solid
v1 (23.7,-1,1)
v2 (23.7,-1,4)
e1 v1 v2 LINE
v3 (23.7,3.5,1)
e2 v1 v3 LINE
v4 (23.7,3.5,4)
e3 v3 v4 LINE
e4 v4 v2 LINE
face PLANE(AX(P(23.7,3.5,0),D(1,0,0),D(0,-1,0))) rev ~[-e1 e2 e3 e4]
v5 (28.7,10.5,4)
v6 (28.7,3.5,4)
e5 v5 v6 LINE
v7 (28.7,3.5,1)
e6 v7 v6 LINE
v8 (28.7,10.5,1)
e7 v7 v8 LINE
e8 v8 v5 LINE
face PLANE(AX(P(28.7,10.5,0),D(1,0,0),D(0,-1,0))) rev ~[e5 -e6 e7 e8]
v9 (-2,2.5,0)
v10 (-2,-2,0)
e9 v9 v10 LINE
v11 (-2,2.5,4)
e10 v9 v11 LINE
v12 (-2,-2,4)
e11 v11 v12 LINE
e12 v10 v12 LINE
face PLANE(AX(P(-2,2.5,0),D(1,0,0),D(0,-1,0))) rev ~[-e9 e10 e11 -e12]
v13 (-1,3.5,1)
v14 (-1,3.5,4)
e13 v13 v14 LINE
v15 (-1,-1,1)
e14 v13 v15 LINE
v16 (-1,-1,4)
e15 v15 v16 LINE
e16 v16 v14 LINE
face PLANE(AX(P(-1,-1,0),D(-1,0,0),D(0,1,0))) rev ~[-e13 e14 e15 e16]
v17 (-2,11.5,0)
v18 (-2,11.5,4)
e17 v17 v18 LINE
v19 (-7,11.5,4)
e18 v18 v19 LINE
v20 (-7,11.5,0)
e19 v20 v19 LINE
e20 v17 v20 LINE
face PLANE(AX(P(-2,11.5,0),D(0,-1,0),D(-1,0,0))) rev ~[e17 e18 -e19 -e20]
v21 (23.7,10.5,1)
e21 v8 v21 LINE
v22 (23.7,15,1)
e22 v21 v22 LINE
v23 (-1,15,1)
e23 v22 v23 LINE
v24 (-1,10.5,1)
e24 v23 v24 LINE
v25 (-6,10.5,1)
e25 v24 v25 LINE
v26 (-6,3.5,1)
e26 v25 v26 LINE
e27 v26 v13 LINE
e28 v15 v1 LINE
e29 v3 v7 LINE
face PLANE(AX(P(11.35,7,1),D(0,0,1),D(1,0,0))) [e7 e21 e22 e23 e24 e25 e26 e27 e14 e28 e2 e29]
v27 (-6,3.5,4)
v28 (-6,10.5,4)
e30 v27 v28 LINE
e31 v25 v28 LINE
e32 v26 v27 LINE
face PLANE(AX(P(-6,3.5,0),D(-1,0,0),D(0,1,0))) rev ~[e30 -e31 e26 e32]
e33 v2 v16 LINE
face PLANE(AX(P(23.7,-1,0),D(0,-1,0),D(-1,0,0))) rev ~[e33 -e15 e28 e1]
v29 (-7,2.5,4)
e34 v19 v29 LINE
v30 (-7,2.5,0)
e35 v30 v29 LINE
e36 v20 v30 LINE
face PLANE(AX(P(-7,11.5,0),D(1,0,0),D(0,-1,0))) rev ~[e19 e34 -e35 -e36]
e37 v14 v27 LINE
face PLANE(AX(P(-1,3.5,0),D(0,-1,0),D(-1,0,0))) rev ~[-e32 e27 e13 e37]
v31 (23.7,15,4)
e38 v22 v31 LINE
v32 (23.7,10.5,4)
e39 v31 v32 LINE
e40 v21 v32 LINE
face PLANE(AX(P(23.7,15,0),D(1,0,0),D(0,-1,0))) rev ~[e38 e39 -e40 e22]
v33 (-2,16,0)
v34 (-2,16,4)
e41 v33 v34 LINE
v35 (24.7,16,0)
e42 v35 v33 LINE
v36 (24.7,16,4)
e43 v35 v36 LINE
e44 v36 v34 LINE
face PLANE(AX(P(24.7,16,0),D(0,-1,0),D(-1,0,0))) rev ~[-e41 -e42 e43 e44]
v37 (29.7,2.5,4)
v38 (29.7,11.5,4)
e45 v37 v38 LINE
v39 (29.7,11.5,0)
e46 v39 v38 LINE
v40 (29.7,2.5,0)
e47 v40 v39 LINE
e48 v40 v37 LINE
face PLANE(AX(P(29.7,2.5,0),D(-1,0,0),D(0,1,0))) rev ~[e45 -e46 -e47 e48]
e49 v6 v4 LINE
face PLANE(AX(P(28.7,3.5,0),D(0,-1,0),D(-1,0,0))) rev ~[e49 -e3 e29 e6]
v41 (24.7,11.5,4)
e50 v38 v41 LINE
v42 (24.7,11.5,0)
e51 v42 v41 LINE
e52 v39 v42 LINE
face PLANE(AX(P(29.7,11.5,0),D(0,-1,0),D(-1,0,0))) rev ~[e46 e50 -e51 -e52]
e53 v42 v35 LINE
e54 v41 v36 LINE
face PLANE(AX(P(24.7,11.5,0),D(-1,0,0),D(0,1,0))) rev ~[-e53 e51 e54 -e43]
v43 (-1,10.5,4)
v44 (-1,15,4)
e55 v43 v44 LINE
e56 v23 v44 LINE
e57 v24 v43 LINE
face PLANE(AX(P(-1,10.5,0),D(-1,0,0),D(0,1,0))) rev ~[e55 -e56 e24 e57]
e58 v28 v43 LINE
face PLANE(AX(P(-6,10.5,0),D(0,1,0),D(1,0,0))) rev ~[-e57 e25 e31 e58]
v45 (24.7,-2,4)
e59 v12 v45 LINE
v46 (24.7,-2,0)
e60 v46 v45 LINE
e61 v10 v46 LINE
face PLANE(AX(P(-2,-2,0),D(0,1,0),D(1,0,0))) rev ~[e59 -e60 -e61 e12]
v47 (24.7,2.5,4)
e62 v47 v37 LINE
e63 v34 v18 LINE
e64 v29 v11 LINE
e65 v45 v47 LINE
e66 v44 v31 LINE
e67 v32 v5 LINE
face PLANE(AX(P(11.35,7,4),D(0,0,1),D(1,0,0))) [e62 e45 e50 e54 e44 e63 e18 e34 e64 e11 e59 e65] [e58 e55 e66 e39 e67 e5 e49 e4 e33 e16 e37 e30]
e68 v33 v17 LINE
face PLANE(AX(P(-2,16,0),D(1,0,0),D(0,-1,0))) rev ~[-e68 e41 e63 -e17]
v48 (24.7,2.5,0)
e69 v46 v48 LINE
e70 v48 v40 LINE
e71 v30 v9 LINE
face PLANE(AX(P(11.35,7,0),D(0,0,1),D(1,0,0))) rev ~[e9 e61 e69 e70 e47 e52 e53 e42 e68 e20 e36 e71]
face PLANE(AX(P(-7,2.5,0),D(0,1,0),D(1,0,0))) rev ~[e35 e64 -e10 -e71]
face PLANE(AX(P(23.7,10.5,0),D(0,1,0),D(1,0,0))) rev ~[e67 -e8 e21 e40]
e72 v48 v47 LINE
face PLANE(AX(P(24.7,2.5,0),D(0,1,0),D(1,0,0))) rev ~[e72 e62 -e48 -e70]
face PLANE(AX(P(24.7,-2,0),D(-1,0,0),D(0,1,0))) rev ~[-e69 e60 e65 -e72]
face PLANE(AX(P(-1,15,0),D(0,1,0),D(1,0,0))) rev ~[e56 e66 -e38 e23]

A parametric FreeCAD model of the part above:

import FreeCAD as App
import Part
import Sketcher

V = App.Vector
Q = App.Units.Quantity


def add_polygon(sketch, points):
    """Adds a closed chain of lines whose ends are joined by coincident constraints."""
    first, n = sketch.GeometryCount, len(points)
    for a, b in zip(points, points[1:] + points[:1]):
        sketch.addGeometry(Part.LineSegment(App.Vector(*a, 0), App.Vector(*b, 0)), False)
    for i in range(n):
        sketch.addConstraint(Sketcher.Constraint("Coincident", first + i, 2, first + (i + 1) % n, 1))

doc = App.newDocument("Part")
params = doc.addObject("Spreadsheet::Sheet", "Params")
for row, (alias, value) in enumerate([
    ("sketch1_width", "5 mm"),
    ("sketch1_height", "9 mm"),
    ("sketch1_height2", "7 mm"),
    ("sketch1_width2", "26.7 mm"),
    ("sketch1_width3", "24.7 mm"),
    ("pad1_length", "4 mm"),
    ("sketch2_width", "5 mm"),
    ("sketch2_height", "7 mm"),
    ("sketch2_width2", "24.7 mm"),
    ("sketch2_height2", "4.5 mm"),
    ("pad2_length", "1 mm"),
], start=1):
    params.set(f"A{row}", alias)
    params.set(f"B{row}", "=" + value)
    params.setAlias(f"B{row}", alias)

body = doc.addObject("PartDesign::Body", "Body")

# Sketch on XY plane
sketch1 = body.newObject("Sketcher::SketchObject", "Sketch")
sketch1.AttachmentSupport = (doc.getObject("XY_Plane"), [""])
sketch1.MapMode = "FlatFace"
add_polygon(sketch1, [(-2, 16), (-2, 11.5), (-7, 11.5), (-7, 2.5), (-2, 2.5), (-2, -2), (24.7, -2), (24.7, 2.5), (29.7, 2.5), (29.7, 11.5), (24.7, 11.5), (24.7, 16)])  # lines 0-11
add_polygon(sketch1, [(-6, 3.5), (-6, 10.5), (-1, 10.5), (-1, 15), (23.7, 15), (23.7, 10.5), (28.7, 10.5), (28.7, 3.5), (23.7, 3.5), (23.7, -1), (-1, -1), (-1, 3.5)])  # lines 12-23
sketch1.addConstraint(Sketcher.Constraint("Vertical", 0))
sketch1.addConstraint(Sketcher.Constraint("Horizontal", 1))
sketch1.addConstraint(Sketcher.Constraint("Vertical", 2))
sketch1.addConstraint(Sketcher.Constraint("Horizontal", 3))
sketch1.addConstraint(Sketcher.Constraint("Vertical", 4))
sketch1.addConstraint(Sketcher.Constraint("Horizontal", 5))
sketch1.addConstraint(Sketcher.Constraint("Vertical", 6))
sketch1.addConstraint(Sketcher.Constraint("Horizontal", 7))
sketch1.addConstraint(Sketcher.Constraint("Vertical", 8))
sketch1.addConstraint(Sketcher.Constraint("Horizontal", 9))
sketch1.addConstraint(Sketcher.Constraint("Vertical", 10))
sketch1.addConstraint(Sketcher.Constraint("Horizontal", 11))
sketch1.addConstraint(Sketcher.Constraint("Vertical", 12))
sketch1.addConstraint(Sketcher.Constraint("Horizontal", 13))
sketch1.addConstraint(Sketcher.Constraint("Vertical", 14))
sketch1.addConstraint(Sketcher.Constraint("Horizontal", 15))
sketch1.addConstraint(Sketcher.Constraint("Vertical", 16))
sketch1.addConstraint(Sketcher.Constraint("Horizontal", 17))
sketch1.addConstraint(Sketcher.Constraint("Vertical", 18))
sketch1.addConstraint(Sketcher.Constraint("Horizontal", 19))
sketch1.addConstraint(Sketcher.Constraint("Vertical", 20))
sketch1.addConstraint(Sketcher.Constraint("Horizontal", 21))
sketch1.addConstraint(Sketcher.Constraint("Vertical", 22))
sketch1.addConstraint(Sketcher.Constraint("Horizontal", 23))
sketch1.addConstraint(Sketcher.Constraint("Horizontal", 3, 2, 6, 2))
sketch1.addConstraint(Sketcher.Constraint("Horizontal", 1, 2, 8, 2))
sketch1.addConstraint(Sketcher.Constraint("Horizontal", 13, 2, 16, 2))
sketch1.addConstraint(Sketcher.Constraint("Horizontal", 19, 2, 22, 2))
sketch1.addConstraint(Sketcher.Constraint("Vertical", 0, 2, 3, 2))
sketch1.addConstraint(Sketcher.Constraint("Vertical", 6, 2, 9, 2))
sketch1.addConstraint(Sketcher.Constraint("Vertical", 16, 2, 19, 2))
sketch1.addConstraint(Sketcher.Constraint("Vertical", 14, 2, 21, 2))
sketch1.addConstraint(Sketcher.Constraint("Equal", 3, 7))
sketch1.addConstraint(Sketcher.Constraint("Equal", 9, 13))
sketch1.addConstraint(Sketcher.Constraint("Equal", 13, 17))
sketch1.addConstraint(Sketcher.Constraint("Equal", 0, 4))
sketch1.addConstraint(Sketcher.Constraint("Equal", 10, 14))
sketch1.addConstraint(Sketcher.Constraint("Equal", 16, 20))
sketch1.addConstraint(Sketcher.Constraint("DistanceX", 1, 2, 1, 1, Q("5 mm")))
sketch1.addConstraint(Sketcher.Constraint("DistanceY", 2, 2, 2, 1, Q("9 mm")))
sketch1.addConstraint(Sketcher.Constraint("DistanceY", 12, 1, 12, 2, Q("7 mm")))
sketch1.addConstraint(Sketcher.Constraint("DistanceX", 5, 1, 5, 2, Q("26.7 mm")))
sketch1.addConstraint(Sketcher.Constraint("DistanceX", 15, 1, 15, 2, Q("24.7 mm")))
sketch1.addConstraint(Sketcher.Constraint("DistanceY", 0, 2, 0, 1, Q("4.5 mm")))
sketch1.addConstraint(Sketcher.Constraint("DistanceX", 0, 2, -1, 1, Q("2 mm")))
sketch1.addConstraint(Sketcher.Constraint("DistanceY", 4, 2, -1, 1, Q("2 mm")))
sketch1.addConstraint(Sketcher.Constraint("DistanceX", 12, 2, -1, 1, Q("6 mm")))
sketch1.addConstraint(Sketcher.Constraint("DistanceY", -1, 1, 14, 2, Q("15 mm")))
sketch1.setExpression("Constraints[62]", "Params.sketch1_width")
sketch1.setExpression("Constraints[63]", "Params.sketch1_height")
sketch1.setExpression("Constraints[64]", "Params.sketch1_height2")
sketch1.setExpression("Constraints[65]", "Params.sketch1_width2")
sketch1.setExpression("Constraints[66]", "Params.sketch1_width3")
pad1 = body.newObject("PartDesign::Pad", "Pad")
pad1.Profile = sketch1
pad1.setExpression("Length", "Params.pad1_length")

# Sketch on XY plane
sketch2 = body.newObject("Sketcher::SketchObject", "Sketch001")
sketch2.AttachmentSupport = (doc.getObject("XY_Plane"), [""])
sketch2.MapMode = "FlatFace"
add_polygon(sketch2, [(-1, 15), (-1, 10.5), (-6, 10.5), (-6, 3.5), (-1, 3.5), (-1, -1), (23.7, -1), (23.7, 3.5), (28.7, 3.5), (28.7, 10.5), (23.7, 10.5), (23.7, 15)])  # lines 0-11
sketch2.addConstraint(Sketcher.Constraint("Vertical", 0))
sketch2.addConstraint(Sketcher.Constraint("Horizontal", 1))
sketch2.addConstraint(Sketcher.Constraint("Vertical", 2))
sketch2.addConstraint(Sketcher.Constraint("Horizontal", 3))
sketch2.addConstraint(Sketcher.Constraint("Vertical", 4))
sketch2.addConstraint(Sketcher.Constraint("Horizontal", 5))
sketch2.addConstraint(Sketcher.Constraint("Vertical", 6))
sketch2.addConstraint(Sketcher.Constraint("Horizontal", 7))
sketch2.addConstraint(Sketcher.Constraint("Vertical", 8))
sketch2.addConstraint(Sketcher.Constraint("Horizontal", 9))
sketch2.addConstraint(Sketcher.Constraint("Vertical", 10))
sketch2.addConstraint(Sketcher.Constraint("Horizontal", 11))
sketch2.addConstraint(Sketcher.Constraint("Horizontal", 3, 2, 6, 2))
sketch2.addConstraint(Sketcher.Constraint("Horizontal", 1, 2, 8, 2))
sketch2.addConstraint(Sketcher.Constraint("Vertical", 0, 2, 3, 2))
sketch2.addConstraint(Sketcher.Constraint("Vertical", 6, 2, 9, 2))
sketch2.addConstraint(Sketcher.Constraint("Equal", 3, 7))
sketch2.addConstraint(Sketcher.Constraint("Equal", 0, 4))
sketch2.addConstraint(Sketcher.Constraint("DistanceX", 1, 2, 1, 1, Q("5 mm")))
sketch2.addConstraint(Sketcher.Constraint("DistanceY", 2, 2, 2, 1, Q("7 mm")))
sketch2.addConstraint(Sketcher.Constraint("DistanceX", 5, 1, 5, 2, Q("24.7 mm")))
sketch2.addConstraint(Sketcher.Constraint("DistanceY", 0, 2, 0, 1, Q("4.5 mm")))
sketch2.addConstraint(Sketcher.Constraint("DistanceX", 0, 2, -1, 1, Q("1 mm")))
sketch2.addConstraint(Sketcher.Constraint("DistanceY", 4, 2, -1, 1, Q("1 mm")))
sketch2.setExpression("Constraints[30]", "Params.sketch2_width")
sketch2.setExpression("Constraints[31]", "Params.sketch2_height")
sketch2.setExpression("Constraints[32]", "Params.sketch2_width2")
sketch2.setExpression("Constraints[33]", "Params.sketch2_height2")
pad2 = body.newObject("PartDesign::Pad", "Pad001")
pad2.Profile = sketch2
pad2.setExpression("Length", "Params.pad2_length")

doc.recompute()
